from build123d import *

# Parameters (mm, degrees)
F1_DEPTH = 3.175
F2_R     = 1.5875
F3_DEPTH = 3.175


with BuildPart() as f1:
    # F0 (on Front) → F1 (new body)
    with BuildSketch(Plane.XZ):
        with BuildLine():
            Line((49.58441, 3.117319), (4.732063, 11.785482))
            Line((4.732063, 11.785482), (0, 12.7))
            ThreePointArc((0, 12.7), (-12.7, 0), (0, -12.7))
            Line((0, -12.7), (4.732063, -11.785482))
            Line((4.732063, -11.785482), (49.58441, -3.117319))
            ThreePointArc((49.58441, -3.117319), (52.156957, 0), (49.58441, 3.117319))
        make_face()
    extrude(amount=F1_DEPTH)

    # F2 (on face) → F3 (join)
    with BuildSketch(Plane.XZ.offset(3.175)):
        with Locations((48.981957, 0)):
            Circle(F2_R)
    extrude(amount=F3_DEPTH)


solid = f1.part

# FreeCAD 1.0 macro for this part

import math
import FreeCAD as App
import Part
import Sketcher
from FreeCAD import Vector
Q = App.Units.Quantity

doc = App.newDocument("Part")
body = doc.addObject("PartDesign::Body", "Body")

# Sketch on XZ plane
sketch1 = body.newObject("Sketcher::SketchObject", "Sketch")
sketch1.AttachmentSupport = (doc.getObject("XZ_Plane"), [""])
sketch1.MapMode = "FlatFace"
sketch1.addGeometry([
    Part.LineSegment(Vector(49.6, 3.1, 0), Vector(4.7, 11.8, 0)),  # 0
    Part.LineSegment(Vector(4.7, 11.8, 0), Vector(0, 12.7, 0)),  # 1
    Part.ArcOfCircle(Part.Circle(Vector(0, 0, 0), Vector(0, 0, 1), 12.7), math.radians(90), math.radians(270)),  # 2
    Part.LineSegment(Vector(0, -12.7, 0), Vector(4.7, -11.8, 0)),  # 3
    Part.LineSegment(Vector(4.7, -11.8, 0), Vector(49.6, -3.1, 0)),  # 4
    Part.ArcOfCircle(Part.Circle(Vector(49, 0, 0), Vector(0, 0, 1), 3.2), math.radians(-79), math.radians(79)),  # 5
], False)
sketch1.addConstraint([
    Sketcher.Constraint("Coincident", 0, 2, 1, 1),
    Sketcher.Constraint("Coincident", 1, 2, 2, 1),
    Sketcher.Constraint("Coincident", 2, 2, 3, 1),
    Sketcher.Constraint("Coincident", 3, 2, 4, 1),
    Sketcher.Constraint("Tangent", 4, 2, 5, 1),
    Sketcher.Constraint("Tangent", 5, 2, 0, 1),
    Sketcher.Constraint("Coincident", 2, 3, -1, 1),
    Sketcher.Constraint("Symmetric", 0, 2, 3, 2, -1),
    Sketcher.Constraint("PointOnObject", 5, 3, -1),
    Sketcher.Constraint("PointOnObject", 1, 2, -2),
    Sketcher.Constraint("PointOnObject", 2, 2, -2),
    Sketcher.Constraint("Parallel", 0, 1),
    Sketcher.Constraint("Radius", 2, Q("0.5 in")),
    Sketcher.Constraint("Radius", 5, Q("0.125 in")),
    Sketcher.Constraint("DistanceY", 4, 2, 0, 2, Q("14.902801 mm")),
    Sketcher.Constraint("DistanceX", -1, 1, 4, 2, Q("49.58441 mm")),
])
pad1 = body.newObject("PartDesign::Pad", "Pad")
pad1.Profile = sketch1
pad1.Length = Q("0.125 in")

# Sketch on XZ plane
sketch2 = body.newObject("Sketcher::SketchObject", "Sketch001")
sketch2.AttachmentSupport = (doc.getObject("XZ_Plane"), [""])
sketch2.MapMode = "FlatFace"
sketch2.AttachmentOffset = App.Placement(Vector(0, 0, 0.125 * 25.4), App.Rotation())
sketch2.addGeometry(Part.Circle(Vector(49, 0, 0), Vector(0, 0, 1), 1.6), False)
sketch2.addConstraint([
    Sketcher.Constraint("PointOnObject", 0, 3, -1),
    Sketcher.Constraint("Diameter", 0, Q("0.125 in")),
    Sketcher.Constraint("DistanceX", -1, 1, 0, 3, Q("48.981957 mm")),
])
pad2 = body.newObject("PartDesign::Pad", "Pad001")
pad2.Profile = sketch2
pad2.Length = Q("0.125 in")

doc.recompute()
